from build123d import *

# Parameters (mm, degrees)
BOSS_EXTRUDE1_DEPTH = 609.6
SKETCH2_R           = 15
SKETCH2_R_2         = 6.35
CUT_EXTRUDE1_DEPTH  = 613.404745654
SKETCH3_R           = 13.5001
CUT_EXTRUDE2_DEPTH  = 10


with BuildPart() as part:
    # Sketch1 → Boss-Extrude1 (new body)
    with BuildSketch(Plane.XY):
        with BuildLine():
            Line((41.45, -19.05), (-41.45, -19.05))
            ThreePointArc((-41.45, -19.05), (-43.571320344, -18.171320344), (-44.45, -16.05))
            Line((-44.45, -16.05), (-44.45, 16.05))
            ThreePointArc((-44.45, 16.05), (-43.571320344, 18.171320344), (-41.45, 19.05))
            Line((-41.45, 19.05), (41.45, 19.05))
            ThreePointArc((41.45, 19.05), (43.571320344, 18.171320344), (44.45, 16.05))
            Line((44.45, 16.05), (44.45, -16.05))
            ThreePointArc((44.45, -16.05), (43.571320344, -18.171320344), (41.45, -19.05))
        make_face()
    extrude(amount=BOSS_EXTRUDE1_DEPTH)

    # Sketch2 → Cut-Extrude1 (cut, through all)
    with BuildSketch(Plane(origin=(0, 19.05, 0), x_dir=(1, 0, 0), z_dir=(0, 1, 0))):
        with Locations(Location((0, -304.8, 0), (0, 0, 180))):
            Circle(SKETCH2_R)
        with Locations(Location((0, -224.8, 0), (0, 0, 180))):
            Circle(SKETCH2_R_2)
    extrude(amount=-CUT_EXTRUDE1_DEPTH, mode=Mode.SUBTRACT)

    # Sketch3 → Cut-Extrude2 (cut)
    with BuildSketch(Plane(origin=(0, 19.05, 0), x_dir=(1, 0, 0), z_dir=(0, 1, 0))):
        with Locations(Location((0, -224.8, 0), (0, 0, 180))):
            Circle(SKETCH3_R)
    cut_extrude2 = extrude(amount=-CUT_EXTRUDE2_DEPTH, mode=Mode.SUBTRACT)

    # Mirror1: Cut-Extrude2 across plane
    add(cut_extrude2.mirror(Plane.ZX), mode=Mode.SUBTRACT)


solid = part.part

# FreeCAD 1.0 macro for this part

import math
import FreeCAD as App
import Part
import Sketcher
from FreeCAD import Vector
Q = App.Units.Quantity

doc = App.newDocument("Part")
body = doc.addObject("PartDesign::Body", "Body")

sketch1 = body.newObject("Sketcher::SketchObject", "Sketch")
sketch1.AttachmentSupport = (doc.getObject("XY_Plane"), [""])
sketch1.MapMode = "FlatFace"
sketch1.addGeometry([
    Part.LineSegment(Vector(-41.45, -19.05, 0), Vector(41.45, -19.05, 0)),
    Part.ArcOfCircle(Part.Circle(Vector(41.45, -16.05, 0), Vector(0, 0, 1), 3), math.radians(-90), math.radians(0)),
    Part.LineSegment(Vector(44.45, -16.05, 0), Vector(44.45, 16.05, 0)),
    Part.ArcOfCircle(Part.Circle(Vector(41.45, 16.05, 0), Vector(0, 0, 1), 3), math.radians(0), math.radians(90)),
    Part.LineSegment(Vector(41.45, 19.05, 0), Vector(-41.45, 19.05, 0)),
    Part.ArcOfCircle(Part.Circle(Vector(-41.45, 16.05, 0), Vector(0, 0, 1), 3), math.radians(90), math.radians(180)),
    Part.LineSegment(Vector(-44.45, 16.05, 0), Vector(-44.45, -16.05, 0)),
    Part.ArcOfCircle(Part.Circle(Vector(-41.45, -16.05, 0), Vector(0, 0, 1), 3), math.radians(180), math.radians(270)),
], False)
sketch1.addConstraint([
    Sketcher.Constraint("Tangent", 0, 2, 1, 1),
    Sketcher.Constraint("Tangent", 1, 2, 2, 1),
    Sketcher.Constraint("Tangent", 2, 2, 3, 1),
    Sketcher.Constraint("Tangent", 3, 2, 4, 1),
    Sketcher.Constraint("Tangent", 4, 2, 5, 1),
    Sketcher.Constraint("Tangent", 5, 2, 6, 1),
    Sketcher.Constraint("Tangent", 6, 2, 7, 1),
    Sketcher.Constraint("Tangent", 7, 2, 0, 1),
    Sketcher.Constraint("Horizontal", 0),
    Sketcher.Constraint("Vertical", 2),
    Sketcher.Constraint("Horizontal", 4),
    Sketcher.Constraint("Vertical", 6),
    Sketcher.Constraint("Equal", 1, 3),
    Sketcher.Constraint("Equal", 3, 5),
    Sketcher.Constraint("Equal", 5, 7),
    Sketcher.Constraint("Symmetric", 1, 3, 5, 3, -1, 1),
    Sketcher.Constraint("Radius", 1, Q("3 mm")),
    Sketcher.Constraint("DistanceX", 0, 1, 0, 2, Q("82.9 mm")),
    Sketcher.Constraint("DistanceY", 2, 1, 2, 2, Q("32.1 mm")),
])
pad1 = body.newObject("PartDesign::Pad", "Pad")
pad1.Profile = sketch1
pad1.Length = 609.6

sketch2 = body.newObject("Sketcher::SketchObject", "Sketch001")
sketch2.AttachmentSupport = (doc.getObject("XZ_Plane"), [""])
sketch2.MapMode = "FlatFace"
sketch2.AttachmentOffset = App.Placement(Vector(0, 0, -19.05), App.Rotation())
sketch2.addGeometry([
    Part.Circle(Vector(0, 304.8, 0), Vector(0, 0, 1), 15),
    Part.Circle(Vector(0, 224.8, 0), Vector(0, 0, 1), 6.35),
], False)
sketch2.addConstraint([
    Sketcher.Constraint("PointOnObject", 0, 3, -2),
    Sketcher.Constraint("PointOnObject", 1, 3, -2),
    Sketcher.Constraint("Diameter", 0, Q("30 mm")),
    Sketcher.Constraint("Diameter", 1, Q("12.7 mm")),
    Sketcher.Constraint("DistanceY", 1, 3, 0, 3, Q("80 mm")),
    Sketcher.Constraint("DistanceY", -1, 1, 0, 3, Q("304.8 mm")),
])
pocket1 = body.newObject("PartDesign::Pocket", "Pocket")
pocket1.Profile = sketch2
pocket1.Type = "ThroughAll"
pocket1.Reversed = True

sketch3 = body.newObject("Sketcher::SketchObject", "Sketch002")
sketch3.AttachmentSupport = (doc.getObject("XZ_Plane"), [""])
sketch3.MapMode = "FlatFace"
sketch3.AttachmentOffset = App.Placement(Vector(0, 0, -19.05), App.Rotation())
sketch3.addGeometry(Part.Circle(Vector(0, 224.8, 0), Vector(0, 0, 1), 13.5001), False)
sketch3.addConstraint([
    Sketcher.Constraint("PointOnObject", 0, 3, -2),
    Sketcher.Constraint("Diameter", 0, Q("27.0002 mm")),
    Sketcher.Constraint("DistanceY", -1, 1, 0, 3, Q("224.8 mm")),
])
pocket2 = body.newObject("PartDesign::Pocket", "Pocket001")
pocket2.Profile = sketch3
pocket2.Length = 10
pocket2.Reversed = True
doc.recompute()

mirrored = body.newObject("PartDesign::Mirrored", "Mirrored")
mirrored.Originals = [pocket2]
mirrored.MirrorPlane = (doc.getObject("XZ_Plane"), [""])
body.Tip = mirrored

doc.recompute()
